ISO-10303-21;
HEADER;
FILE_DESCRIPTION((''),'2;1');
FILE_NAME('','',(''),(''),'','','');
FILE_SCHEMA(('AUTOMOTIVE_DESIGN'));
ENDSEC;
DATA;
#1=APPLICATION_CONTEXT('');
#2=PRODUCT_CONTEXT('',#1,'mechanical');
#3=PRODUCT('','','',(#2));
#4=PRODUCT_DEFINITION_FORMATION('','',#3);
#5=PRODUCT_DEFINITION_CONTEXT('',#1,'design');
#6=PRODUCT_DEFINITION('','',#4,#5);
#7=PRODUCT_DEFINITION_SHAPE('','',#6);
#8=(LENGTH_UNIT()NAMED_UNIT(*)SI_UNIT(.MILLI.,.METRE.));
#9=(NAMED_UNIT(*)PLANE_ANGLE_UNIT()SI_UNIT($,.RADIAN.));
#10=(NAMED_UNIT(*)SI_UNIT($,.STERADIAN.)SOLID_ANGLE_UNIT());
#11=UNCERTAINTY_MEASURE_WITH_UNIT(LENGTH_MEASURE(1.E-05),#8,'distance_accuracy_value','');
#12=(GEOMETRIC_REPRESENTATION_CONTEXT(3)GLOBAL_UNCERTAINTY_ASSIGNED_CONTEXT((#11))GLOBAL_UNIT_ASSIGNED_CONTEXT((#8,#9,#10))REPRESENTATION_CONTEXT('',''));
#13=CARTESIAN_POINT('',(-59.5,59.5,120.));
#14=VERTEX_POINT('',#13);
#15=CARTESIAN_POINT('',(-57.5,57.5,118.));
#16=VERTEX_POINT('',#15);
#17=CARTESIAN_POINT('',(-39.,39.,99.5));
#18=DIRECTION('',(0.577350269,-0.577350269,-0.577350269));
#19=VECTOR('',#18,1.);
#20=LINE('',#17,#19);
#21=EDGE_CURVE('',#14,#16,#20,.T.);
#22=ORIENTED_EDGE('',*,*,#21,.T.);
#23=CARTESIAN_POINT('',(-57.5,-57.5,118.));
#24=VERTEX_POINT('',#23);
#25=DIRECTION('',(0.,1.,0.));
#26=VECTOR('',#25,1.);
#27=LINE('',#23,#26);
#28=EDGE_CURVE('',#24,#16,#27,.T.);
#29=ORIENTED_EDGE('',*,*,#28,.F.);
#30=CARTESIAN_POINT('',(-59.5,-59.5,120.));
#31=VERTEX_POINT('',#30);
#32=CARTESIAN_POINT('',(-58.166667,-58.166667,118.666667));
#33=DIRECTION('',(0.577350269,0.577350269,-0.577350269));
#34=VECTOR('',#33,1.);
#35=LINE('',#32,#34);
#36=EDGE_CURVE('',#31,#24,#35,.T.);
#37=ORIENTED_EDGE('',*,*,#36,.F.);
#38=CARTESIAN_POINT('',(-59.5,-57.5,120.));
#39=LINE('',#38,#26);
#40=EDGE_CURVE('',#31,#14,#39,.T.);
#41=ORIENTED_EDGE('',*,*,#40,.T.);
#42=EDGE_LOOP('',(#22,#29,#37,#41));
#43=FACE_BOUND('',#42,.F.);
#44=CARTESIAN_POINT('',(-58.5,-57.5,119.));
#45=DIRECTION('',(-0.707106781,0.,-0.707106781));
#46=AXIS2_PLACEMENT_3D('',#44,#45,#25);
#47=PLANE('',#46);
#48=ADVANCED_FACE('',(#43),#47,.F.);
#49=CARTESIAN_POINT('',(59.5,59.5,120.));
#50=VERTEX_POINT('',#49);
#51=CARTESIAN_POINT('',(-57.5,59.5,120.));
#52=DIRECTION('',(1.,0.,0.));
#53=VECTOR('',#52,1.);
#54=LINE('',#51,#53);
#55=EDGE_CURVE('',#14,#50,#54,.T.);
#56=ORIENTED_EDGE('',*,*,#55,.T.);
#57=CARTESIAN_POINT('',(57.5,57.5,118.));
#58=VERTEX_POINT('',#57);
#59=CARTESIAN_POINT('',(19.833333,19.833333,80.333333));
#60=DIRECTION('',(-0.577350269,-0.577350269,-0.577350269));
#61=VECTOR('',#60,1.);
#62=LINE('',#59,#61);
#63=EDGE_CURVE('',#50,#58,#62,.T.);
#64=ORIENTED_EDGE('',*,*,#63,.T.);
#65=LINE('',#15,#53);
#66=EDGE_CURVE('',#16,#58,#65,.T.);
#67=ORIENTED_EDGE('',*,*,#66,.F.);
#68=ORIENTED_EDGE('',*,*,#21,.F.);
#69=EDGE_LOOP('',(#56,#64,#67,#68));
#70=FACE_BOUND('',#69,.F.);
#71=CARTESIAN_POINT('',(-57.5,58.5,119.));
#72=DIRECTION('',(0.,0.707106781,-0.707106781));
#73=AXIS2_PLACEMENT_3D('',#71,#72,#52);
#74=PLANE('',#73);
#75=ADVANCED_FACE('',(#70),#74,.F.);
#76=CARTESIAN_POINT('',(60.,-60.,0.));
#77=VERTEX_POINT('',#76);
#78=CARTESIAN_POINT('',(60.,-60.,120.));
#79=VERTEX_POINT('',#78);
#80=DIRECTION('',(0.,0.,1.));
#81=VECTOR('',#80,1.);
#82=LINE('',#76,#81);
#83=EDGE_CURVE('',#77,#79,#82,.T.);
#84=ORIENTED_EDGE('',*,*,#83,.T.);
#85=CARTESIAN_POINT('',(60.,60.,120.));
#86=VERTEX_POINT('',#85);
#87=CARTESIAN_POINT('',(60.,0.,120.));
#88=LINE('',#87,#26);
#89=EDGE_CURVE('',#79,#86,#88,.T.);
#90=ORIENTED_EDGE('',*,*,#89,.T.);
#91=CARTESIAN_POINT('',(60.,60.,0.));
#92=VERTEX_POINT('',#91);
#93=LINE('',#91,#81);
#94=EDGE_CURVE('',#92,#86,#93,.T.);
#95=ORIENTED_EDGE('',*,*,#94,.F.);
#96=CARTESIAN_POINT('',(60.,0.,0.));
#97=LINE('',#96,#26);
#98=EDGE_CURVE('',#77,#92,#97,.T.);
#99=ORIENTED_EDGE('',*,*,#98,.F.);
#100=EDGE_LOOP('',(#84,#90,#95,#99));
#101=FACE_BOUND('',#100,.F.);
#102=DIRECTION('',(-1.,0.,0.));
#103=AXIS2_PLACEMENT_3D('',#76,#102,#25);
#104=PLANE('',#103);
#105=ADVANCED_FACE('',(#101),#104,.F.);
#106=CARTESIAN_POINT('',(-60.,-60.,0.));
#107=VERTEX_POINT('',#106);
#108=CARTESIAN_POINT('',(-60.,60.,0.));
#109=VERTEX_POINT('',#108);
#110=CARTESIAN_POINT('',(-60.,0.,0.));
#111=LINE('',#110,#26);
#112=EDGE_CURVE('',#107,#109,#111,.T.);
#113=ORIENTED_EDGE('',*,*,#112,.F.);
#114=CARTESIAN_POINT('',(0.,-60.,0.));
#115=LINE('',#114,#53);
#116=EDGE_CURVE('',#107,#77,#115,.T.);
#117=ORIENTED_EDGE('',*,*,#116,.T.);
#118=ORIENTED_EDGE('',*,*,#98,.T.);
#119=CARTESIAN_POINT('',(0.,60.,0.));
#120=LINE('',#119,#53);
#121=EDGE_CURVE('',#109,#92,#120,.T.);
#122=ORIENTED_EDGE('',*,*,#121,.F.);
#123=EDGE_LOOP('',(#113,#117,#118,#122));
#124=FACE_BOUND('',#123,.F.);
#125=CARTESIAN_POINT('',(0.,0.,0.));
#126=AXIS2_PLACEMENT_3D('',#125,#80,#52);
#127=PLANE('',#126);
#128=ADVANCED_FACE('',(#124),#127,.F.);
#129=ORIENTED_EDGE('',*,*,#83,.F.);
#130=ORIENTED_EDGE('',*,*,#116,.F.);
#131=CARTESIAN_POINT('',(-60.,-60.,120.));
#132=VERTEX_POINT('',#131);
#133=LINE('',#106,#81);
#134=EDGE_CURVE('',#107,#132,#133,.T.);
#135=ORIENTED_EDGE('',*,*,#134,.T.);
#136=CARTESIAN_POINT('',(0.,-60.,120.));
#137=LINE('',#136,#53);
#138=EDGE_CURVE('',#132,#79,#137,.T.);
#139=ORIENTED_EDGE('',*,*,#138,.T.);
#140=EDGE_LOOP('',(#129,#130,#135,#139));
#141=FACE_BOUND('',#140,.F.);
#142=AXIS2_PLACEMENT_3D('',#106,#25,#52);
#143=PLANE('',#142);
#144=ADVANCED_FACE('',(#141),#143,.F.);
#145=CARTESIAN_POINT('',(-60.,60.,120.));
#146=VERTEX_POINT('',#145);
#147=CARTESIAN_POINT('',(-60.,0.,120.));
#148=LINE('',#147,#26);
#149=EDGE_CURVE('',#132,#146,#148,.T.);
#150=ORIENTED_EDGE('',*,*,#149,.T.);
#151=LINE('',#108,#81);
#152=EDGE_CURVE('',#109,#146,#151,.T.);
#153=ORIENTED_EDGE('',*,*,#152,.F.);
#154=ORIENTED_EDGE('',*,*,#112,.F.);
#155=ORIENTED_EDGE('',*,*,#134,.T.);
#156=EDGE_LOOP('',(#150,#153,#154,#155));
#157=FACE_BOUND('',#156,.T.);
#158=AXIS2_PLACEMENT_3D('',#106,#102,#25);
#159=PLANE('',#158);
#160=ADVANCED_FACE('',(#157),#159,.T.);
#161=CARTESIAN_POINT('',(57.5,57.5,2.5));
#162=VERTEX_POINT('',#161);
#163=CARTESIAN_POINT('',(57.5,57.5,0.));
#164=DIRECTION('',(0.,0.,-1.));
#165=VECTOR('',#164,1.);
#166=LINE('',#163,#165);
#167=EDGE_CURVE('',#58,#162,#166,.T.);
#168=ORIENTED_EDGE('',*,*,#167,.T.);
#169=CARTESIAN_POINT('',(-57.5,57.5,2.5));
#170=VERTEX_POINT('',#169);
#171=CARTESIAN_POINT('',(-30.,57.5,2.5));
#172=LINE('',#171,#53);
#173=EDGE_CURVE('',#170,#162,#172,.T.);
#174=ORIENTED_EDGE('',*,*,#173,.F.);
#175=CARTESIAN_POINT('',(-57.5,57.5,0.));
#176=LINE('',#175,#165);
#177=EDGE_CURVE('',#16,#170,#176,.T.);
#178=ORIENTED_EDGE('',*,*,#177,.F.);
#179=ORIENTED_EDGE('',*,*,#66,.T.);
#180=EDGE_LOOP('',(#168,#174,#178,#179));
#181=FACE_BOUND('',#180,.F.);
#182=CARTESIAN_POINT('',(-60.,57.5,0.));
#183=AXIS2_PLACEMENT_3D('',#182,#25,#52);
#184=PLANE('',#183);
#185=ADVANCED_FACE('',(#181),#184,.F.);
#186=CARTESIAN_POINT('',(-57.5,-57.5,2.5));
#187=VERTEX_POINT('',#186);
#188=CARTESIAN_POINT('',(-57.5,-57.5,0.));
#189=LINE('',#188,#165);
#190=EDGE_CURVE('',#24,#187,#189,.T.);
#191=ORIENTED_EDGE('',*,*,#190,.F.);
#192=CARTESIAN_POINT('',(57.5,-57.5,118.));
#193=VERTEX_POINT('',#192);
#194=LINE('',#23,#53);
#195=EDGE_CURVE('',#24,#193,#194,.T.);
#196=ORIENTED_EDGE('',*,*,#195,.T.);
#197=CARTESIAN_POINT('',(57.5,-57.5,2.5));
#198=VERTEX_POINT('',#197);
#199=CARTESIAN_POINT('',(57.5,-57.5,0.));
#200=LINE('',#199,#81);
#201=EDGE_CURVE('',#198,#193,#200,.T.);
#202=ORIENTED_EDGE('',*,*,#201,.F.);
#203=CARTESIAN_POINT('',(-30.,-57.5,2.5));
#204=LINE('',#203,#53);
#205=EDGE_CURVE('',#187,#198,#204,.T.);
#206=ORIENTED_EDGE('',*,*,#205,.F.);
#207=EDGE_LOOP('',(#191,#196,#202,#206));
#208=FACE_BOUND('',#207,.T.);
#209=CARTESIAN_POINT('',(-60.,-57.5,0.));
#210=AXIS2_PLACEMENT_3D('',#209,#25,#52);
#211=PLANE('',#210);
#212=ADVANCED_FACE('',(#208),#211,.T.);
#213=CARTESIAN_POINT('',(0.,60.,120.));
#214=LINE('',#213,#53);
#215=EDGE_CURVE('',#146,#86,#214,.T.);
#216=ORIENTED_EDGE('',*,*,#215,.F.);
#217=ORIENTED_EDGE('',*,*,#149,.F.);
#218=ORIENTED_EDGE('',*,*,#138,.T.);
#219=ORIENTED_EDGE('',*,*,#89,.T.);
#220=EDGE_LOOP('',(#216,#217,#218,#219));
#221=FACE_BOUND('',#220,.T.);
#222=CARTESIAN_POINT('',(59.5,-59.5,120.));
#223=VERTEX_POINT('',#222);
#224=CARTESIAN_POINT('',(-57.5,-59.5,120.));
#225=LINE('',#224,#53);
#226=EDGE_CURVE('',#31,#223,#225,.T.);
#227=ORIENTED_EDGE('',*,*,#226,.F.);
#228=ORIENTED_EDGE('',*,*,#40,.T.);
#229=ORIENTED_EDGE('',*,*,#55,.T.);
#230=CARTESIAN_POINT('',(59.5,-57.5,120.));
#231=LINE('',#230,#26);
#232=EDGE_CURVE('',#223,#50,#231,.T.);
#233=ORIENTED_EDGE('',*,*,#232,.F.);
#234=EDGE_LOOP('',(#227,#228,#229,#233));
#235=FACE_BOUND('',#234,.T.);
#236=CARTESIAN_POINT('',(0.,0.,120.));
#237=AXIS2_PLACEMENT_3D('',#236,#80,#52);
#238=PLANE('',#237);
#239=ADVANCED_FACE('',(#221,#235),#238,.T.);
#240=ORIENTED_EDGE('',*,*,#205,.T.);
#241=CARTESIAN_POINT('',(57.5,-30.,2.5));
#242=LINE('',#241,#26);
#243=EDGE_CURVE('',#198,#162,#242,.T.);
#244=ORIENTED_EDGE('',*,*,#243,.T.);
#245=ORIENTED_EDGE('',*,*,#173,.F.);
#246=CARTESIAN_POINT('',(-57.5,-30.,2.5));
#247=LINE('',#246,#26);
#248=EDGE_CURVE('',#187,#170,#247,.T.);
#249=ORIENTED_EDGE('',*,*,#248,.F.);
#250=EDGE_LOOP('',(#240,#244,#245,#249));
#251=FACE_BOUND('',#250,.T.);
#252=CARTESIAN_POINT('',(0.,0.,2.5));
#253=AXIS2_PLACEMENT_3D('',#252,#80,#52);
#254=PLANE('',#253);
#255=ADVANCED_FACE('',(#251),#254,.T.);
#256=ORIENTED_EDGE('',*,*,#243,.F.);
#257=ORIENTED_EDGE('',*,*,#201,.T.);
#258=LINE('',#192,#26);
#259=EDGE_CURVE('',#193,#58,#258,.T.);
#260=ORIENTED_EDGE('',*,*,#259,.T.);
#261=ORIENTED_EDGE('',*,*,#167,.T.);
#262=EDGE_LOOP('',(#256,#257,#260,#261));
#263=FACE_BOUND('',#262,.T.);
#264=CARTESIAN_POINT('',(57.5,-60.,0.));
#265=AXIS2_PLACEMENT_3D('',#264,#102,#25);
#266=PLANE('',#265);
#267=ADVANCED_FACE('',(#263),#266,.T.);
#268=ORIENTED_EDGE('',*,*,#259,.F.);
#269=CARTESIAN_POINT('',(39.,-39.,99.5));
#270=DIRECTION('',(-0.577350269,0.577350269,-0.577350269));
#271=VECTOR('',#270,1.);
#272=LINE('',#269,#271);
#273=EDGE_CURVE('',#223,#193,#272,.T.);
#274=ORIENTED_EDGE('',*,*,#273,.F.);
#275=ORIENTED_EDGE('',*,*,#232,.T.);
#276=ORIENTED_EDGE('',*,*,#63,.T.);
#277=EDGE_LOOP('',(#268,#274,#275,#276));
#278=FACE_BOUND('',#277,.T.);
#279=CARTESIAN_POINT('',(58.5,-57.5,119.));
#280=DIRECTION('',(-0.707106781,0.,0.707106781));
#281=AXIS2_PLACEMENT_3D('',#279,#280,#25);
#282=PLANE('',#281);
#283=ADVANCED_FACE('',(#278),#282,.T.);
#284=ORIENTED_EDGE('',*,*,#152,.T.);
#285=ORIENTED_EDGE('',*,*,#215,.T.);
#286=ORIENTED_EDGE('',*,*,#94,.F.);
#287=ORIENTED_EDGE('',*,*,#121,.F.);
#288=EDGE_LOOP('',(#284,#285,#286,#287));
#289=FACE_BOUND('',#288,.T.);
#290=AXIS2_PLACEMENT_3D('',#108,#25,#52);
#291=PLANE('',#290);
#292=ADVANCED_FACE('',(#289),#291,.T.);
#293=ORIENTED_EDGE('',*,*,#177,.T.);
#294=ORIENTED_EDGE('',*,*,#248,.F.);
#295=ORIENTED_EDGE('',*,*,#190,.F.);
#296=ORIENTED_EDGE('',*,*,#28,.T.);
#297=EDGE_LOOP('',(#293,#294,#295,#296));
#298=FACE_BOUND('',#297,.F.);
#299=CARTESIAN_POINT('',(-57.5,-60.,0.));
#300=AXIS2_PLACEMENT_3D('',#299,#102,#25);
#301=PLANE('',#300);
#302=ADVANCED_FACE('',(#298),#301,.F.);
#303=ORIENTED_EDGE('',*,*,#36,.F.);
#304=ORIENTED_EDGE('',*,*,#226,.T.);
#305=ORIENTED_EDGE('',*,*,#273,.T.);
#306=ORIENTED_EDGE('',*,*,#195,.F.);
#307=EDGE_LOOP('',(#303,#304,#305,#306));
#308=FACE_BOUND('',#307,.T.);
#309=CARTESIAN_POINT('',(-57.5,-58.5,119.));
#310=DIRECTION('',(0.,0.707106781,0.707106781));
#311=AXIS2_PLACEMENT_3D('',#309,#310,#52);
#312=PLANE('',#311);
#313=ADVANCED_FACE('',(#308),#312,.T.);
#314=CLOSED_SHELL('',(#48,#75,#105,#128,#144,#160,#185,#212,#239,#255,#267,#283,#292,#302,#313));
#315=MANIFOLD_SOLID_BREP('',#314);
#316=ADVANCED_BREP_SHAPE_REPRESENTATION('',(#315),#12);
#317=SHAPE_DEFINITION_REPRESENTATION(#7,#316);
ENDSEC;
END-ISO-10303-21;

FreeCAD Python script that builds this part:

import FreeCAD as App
import Part
import Sketcher

V = App.Vector
Q = App.Units.Quantity


def edges_at(feature, points):
    """Names of the edges that pass closest to the given points."""
    edges = feature.Shape.Edges
    near = lambda p: min(range(len(edges)), key=lambda i: edges[i].distToShape(Part.Vertex(*p))[0])
    return sorted({f"Edge{near(p) + 1}" for p in points})


def faces_at(feature, points):
    """Names of the faces that lie closest to the given points."""
    faces = feature.Shape.Faces
    near = lambda p: min(range(len(faces)), key=lambda i: faces[i].distToShape(Part.Vertex(*p))[0])
    return sorted({f"Face{near(p) + 1}" for p in points})


def add_polygon(sketch, points):
    """Adds a closed chain of lines whose ends are joined by coincident constraints."""
    first, n = sketch.GeometryCount, len(points)
    for a, b in zip(points, points[1:] + points[:1]):
        sketch.addGeometry(Part.LineSegment(App.Vector(*a, 0), App.Vector(*b, 0)), False)
    for i in range(n):
        sketch.addConstraint(Sketcher.Constraint("Coincident", first + i, 2, first + (i + 1) % n, 1))

doc = App.newDocument("Part")
body = doc.addObject("PartDesign::Body", "Body")

# Sketch on XY plane
sketch1 = doc.addObject("Sketcher::SketchObject", "Sketch")
body.addObject(sketch1)
sketch1.AttachmentSupport = (doc.XY_Plane, [""])
sketch1.MapMode = "FlatFace"
add_polygon(sketch1, [(-60, 60), (-60, -60), (60, -60), (60, 60)])  # lines 0-3
sketch1.addConstraint([
    Sketcher.Constraint("Vertical", 0),
    Sketcher.Constraint("Horizontal", 1),
    Sketcher.Constraint("Vertical", 2),
    Sketcher.Constraint("Horizontal", 3),
    Sketcher.Constraint("Symmetric", 0, 2, 2, 2, -1, 1),
    Sketcher.Constraint("Equal", 3, 0),
    Sketcher.Constraint("DistanceX", 1, 1, 1, 2, Q("120 mm")),
])
pad1 = doc.addObject("PartDesign::Pad", "Pad")
body.addObject(pad1)
pad1.Profile = sketch1
pad1.Length = 120
doc.recompute()

thickness = doc.addObject("PartDesign::Thickness", "Thickness")
body.addObject(thickness)
thickness.Base = (pad1, faces_at(pad1, [(0, 0, 120)]))
thickness.Value = 2.5
thickness.Reversed = True
thickness.Join = "Arc"
doc.recompute()

chamfer = doc.addObject("PartDesign::Chamfer", "Chamfer")
body.addObject(chamfer)
chamfer.Base = (thickness, edges_at(thickness, [
    (0, 57.5, 120),
    (-57.5, 0, 120),
    (0, -57.5, 120),
    (57.5, 0, 120),
]))
chamfer.Size = 2

doc.recompute()
